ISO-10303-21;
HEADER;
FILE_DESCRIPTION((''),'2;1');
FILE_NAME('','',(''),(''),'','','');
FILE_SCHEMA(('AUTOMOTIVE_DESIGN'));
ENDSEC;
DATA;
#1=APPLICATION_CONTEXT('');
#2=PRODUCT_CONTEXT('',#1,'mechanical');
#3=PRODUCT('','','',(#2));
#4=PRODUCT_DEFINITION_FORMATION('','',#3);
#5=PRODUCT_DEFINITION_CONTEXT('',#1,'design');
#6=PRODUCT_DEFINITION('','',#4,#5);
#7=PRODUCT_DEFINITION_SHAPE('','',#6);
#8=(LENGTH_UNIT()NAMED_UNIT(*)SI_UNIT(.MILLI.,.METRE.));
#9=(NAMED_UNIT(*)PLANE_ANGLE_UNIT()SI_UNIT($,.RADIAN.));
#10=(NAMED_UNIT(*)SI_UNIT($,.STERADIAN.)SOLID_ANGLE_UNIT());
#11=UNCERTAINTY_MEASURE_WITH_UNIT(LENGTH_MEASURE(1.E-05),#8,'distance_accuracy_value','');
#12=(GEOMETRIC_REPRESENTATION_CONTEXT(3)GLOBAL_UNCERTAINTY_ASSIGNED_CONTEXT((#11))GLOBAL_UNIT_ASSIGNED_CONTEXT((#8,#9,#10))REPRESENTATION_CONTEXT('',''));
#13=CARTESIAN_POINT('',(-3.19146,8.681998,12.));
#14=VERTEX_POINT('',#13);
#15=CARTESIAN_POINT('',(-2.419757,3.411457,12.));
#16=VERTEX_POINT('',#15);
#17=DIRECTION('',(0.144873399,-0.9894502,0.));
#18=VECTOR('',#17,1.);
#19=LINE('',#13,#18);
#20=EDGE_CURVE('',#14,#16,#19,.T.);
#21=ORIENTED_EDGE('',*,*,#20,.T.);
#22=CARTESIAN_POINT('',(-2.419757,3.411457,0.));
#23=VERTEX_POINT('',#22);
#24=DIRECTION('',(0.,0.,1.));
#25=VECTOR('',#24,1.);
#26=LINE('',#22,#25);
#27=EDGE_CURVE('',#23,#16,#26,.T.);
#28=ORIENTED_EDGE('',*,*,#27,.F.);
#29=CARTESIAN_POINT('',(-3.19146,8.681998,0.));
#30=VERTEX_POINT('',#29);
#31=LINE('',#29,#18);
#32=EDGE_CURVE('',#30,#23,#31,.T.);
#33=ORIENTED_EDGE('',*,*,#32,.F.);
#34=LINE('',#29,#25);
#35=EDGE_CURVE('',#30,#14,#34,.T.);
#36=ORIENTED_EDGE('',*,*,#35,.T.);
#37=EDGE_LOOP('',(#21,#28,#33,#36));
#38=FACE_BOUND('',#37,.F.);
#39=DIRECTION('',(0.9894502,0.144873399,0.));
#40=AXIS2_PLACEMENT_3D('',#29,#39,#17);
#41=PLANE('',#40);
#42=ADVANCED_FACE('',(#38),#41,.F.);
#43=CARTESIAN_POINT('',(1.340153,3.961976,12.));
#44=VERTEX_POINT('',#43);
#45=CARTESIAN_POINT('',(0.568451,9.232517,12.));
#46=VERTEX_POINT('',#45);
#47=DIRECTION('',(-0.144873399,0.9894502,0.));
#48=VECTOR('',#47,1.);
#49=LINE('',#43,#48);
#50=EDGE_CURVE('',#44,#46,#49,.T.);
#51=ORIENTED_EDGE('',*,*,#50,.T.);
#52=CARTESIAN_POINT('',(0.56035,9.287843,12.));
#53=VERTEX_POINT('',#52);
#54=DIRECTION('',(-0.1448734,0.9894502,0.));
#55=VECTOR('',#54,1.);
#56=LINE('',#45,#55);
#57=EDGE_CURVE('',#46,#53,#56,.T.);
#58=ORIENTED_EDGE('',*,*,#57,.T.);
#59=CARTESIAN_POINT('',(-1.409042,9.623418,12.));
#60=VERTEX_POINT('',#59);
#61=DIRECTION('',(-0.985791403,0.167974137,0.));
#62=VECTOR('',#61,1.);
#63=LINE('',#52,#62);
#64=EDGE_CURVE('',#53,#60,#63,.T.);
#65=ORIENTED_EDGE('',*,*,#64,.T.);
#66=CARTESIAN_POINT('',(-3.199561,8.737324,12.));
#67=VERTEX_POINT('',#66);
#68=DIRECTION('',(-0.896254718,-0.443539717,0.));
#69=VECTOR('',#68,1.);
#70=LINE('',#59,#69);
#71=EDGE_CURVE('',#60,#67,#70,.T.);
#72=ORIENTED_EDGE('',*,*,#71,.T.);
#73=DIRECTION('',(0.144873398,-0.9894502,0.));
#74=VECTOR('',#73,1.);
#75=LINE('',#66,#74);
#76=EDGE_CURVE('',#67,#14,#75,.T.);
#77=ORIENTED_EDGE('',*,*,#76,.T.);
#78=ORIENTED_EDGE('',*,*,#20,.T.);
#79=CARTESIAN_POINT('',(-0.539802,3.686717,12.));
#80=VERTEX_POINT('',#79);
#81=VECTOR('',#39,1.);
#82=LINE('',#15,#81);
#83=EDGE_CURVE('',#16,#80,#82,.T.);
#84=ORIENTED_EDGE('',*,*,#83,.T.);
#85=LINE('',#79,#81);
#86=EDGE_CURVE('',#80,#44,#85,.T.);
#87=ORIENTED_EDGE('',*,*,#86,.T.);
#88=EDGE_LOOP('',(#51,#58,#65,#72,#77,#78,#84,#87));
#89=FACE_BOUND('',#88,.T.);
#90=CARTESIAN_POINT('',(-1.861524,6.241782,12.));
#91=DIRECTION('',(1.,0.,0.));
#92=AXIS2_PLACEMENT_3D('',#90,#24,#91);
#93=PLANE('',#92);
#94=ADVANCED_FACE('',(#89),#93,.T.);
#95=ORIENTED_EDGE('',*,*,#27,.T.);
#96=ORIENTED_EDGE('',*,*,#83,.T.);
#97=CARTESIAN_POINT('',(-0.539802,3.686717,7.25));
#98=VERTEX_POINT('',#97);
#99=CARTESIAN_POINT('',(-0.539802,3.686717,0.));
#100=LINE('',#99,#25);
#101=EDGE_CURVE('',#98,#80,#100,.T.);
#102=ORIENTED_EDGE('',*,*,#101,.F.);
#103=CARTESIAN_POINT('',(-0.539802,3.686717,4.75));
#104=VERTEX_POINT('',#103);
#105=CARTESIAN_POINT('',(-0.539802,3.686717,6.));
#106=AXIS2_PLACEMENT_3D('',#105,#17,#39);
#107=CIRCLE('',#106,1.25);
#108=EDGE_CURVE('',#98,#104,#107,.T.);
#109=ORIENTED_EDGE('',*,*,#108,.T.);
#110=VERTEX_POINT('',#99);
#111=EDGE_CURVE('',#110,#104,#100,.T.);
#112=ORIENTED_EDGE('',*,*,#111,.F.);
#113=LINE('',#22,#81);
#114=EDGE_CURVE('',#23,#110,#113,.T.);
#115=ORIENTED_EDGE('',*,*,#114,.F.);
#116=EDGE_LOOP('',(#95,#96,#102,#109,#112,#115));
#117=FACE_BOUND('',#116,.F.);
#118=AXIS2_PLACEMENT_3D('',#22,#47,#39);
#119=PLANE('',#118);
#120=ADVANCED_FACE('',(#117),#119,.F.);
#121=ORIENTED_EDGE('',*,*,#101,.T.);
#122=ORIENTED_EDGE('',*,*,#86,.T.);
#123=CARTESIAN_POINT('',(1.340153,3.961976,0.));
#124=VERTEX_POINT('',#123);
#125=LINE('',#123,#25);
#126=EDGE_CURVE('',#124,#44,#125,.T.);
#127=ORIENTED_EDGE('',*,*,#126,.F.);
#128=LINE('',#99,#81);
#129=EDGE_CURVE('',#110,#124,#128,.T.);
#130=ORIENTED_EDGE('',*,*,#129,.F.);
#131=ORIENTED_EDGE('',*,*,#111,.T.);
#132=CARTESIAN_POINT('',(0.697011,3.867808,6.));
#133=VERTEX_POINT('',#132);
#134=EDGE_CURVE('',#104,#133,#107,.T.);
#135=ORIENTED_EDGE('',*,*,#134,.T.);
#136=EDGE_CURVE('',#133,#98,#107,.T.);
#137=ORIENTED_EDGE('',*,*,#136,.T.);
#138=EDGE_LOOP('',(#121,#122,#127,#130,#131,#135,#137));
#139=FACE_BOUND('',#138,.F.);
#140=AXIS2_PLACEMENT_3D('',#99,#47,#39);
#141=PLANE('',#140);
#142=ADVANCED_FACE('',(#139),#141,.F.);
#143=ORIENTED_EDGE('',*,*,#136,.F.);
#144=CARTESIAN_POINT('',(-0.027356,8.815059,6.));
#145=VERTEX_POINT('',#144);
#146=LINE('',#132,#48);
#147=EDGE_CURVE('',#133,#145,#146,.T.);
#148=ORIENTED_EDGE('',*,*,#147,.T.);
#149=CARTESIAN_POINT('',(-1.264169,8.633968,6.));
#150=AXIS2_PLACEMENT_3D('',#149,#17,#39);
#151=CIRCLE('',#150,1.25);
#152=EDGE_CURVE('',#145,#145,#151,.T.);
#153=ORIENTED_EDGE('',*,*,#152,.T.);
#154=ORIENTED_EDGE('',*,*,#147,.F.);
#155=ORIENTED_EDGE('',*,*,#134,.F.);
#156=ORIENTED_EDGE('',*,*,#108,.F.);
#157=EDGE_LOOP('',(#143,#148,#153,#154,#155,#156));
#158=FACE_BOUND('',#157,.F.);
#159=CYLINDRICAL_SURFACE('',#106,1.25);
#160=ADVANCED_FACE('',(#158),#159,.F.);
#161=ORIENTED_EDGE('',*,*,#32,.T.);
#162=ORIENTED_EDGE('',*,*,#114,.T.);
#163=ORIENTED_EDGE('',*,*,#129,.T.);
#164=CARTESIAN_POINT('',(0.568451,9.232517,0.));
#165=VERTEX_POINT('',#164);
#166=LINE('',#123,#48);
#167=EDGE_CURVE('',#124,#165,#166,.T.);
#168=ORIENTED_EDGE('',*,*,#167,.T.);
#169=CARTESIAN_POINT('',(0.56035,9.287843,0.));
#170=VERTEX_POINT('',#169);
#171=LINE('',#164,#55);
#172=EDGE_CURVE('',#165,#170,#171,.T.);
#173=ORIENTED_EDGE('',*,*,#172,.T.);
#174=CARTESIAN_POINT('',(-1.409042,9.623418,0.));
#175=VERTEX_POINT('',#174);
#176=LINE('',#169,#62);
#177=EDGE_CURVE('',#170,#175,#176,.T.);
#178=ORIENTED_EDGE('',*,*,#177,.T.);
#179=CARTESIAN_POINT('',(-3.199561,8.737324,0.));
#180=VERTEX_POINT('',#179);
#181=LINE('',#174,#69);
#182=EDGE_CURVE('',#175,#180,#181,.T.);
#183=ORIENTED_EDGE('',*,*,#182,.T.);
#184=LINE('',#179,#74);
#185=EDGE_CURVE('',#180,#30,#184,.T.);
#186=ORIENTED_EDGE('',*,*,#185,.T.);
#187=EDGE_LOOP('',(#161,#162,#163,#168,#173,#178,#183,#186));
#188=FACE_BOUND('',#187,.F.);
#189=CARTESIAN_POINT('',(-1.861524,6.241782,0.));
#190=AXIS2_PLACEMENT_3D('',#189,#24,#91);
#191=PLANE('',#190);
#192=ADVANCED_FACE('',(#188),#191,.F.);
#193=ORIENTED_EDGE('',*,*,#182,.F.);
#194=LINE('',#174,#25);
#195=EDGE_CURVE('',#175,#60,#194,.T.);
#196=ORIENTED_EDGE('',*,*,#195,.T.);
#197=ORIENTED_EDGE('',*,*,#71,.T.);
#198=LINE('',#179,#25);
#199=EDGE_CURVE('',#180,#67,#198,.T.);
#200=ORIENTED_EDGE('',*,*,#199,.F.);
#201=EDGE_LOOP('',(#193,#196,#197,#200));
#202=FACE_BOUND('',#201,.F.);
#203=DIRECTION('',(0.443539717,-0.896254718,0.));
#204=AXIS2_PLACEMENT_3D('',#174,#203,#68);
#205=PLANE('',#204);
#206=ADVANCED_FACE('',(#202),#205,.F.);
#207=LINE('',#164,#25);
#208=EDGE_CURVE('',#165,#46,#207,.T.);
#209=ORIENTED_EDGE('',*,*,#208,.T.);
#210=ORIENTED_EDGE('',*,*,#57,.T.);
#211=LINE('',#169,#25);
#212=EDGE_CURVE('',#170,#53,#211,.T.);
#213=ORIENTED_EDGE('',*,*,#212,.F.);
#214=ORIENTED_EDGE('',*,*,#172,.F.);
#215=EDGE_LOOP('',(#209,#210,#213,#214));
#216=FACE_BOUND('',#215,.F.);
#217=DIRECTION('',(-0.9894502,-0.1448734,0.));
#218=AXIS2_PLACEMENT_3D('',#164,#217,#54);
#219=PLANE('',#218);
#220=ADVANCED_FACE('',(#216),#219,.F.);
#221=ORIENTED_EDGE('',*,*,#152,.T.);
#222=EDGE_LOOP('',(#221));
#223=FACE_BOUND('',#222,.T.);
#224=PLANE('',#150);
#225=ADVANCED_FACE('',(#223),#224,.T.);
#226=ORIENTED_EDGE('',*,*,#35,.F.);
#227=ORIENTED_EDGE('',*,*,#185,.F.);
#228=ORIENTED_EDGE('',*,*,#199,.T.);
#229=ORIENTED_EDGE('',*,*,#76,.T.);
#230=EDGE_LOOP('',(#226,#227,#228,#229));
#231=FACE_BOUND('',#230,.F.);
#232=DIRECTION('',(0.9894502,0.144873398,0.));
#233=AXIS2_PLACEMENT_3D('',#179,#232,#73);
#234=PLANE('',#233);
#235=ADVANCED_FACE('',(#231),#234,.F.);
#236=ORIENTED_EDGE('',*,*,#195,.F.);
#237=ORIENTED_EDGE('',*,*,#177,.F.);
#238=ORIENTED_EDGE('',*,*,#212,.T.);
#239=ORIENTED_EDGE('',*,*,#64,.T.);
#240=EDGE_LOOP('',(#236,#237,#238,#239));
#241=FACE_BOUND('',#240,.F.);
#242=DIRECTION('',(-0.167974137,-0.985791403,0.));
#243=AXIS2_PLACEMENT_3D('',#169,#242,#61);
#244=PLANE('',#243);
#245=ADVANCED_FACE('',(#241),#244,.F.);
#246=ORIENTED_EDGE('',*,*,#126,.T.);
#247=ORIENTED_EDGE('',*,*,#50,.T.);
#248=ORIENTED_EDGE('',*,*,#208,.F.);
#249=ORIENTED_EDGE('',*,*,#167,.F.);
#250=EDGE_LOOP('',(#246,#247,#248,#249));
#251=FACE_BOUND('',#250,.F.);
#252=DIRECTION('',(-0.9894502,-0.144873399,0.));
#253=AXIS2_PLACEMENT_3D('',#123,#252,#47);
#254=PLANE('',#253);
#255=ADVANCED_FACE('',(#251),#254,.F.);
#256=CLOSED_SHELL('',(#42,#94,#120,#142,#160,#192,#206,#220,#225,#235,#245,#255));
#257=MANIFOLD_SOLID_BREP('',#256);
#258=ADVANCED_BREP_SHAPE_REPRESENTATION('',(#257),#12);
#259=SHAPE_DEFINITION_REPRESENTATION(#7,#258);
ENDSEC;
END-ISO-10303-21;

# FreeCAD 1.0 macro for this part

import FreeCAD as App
import Part
import Sketcher

V = App.Vector
Q = App.Units.Quantity


def add_polygon(sketch, points):
    """Adds a closed chain of lines whose ends are joined by coincident constraints."""
    first, n = sketch.GeometryCount, len(points)
    for a, b in zip(points, points[1:] + points[:1]):
        sketch.addGeometry(Part.LineSegment(App.Vector(*a, 0), App.Vector(*b, 0)), False)
    for i in range(n):
        sketch.addConstraint(Sketcher.Constraint("Coincident", first + i, 2, first + (i + 1) % n, 1))

doc = App.newDocument("Part")
body = doc.addObject("PartDesign::Body", "Body")

# Sketch on XY plane
sketch1 = body.newObject("Sketcher::SketchObject", "Sketch")
sketch1.AttachmentSupport = (doc.getObject("XY_Plane"), [""])
sketch1.MapMode = "FlatFace"
add_polygon(sketch1, [(-3.19, 8.68), (-2.42, 3.41), (-0.54, 3.69), (1.34, 3.96), (0.57, 9.23), (0.56, 9.29), (-1.41, 9.62), (-3.2, 8.74)])  # lines 0-7
sketch1.addConstraint(Sketcher.Constraint("Perpendicular", 0, 1))
sketch1.addConstraint(Sketcher.Constraint("Parallel", 1, 2))
sketch1.addConstraint(Sketcher.Constraint("Perpendicular", 2, 3))
sketch1.addConstraint(Sketcher.Constraint("Parallel", 3, 4))
sketch1.addConstraint(Sketcher.Constraint("Parallel", 4, 7))
sketch1.addConstraint(Sketcher.Constraint("Equal", 1, 2))
sketch1.addConstraint(Sketcher.Constraint("Equal", 0, 3))
sketch1.addConstraint(Sketcher.Constraint("Equal", 5, 6))
sketch1.addConstraint(Sketcher.Constraint("Equal", 4, 7))
sketch1.addConstraint(Sketcher.Constraint("Distance", 1, Q("1.9 mm")))
sketch1.addConstraint(Sketcher.Constraint("DistanceX", 1, 2, -1, 1, Q("0.539802 mm")))
sketch1.addConstraint(Sketcher.Constraint("DistanceY", 1, 2, 3, 2, Q("5.5458 mm")))
sketch1.addConstraint(Sketcher.Constraint("DistanceX", 4, 2, 3, 2, Q("0.008101 mm")))
sketch1.addConstraint(Sketcher.Constraint("DistanceY", 3, 2, 5, 2, Q("0.390901 mm")))
sketch1.addConstraint(Sketcher.Constraint("Distance", 5, Q("1.997778 mm")))
sketch1.addConstraint(Sketcher.Constraint("DistanceY", -1, 1, 0, 2, Q("3.411457 mm")))
pad1 = body.newObject("PartDesign::Pad", "Pad")
pad1.Profile = sketch1
pad1.Length = 12

# Sketch on an angled plane
sketch2 = body.newObject("Sketcher::SketchObject", "Sketch001")
sketch2.Placement = App.Placement(V(-0.539802, 3.686717, 0), App.Rotation(V(0.9894502, 0.144873399, 0), V(0, 0, 1), V(0.144873399, -0.9894502, 0), "ZXY"))
sketch2.addGeometry(Part.Circle(V(0, 6, 0), V(0, 0, 1), 1.2), False)
sketch2.addConstraint(Sketcher.Constraint("PointOnObject", 0, 3, -2))
sketch2.addConstraint(Sketcher.Constraint("Diameter", 0, Q("2.5 mm")))
sketch2.addConstraint(Sketcher.Constraint("DistanceY", -1, 1, 0, 3, Q("6 mm")))
pocket1 = body.newObject("PartDesign::Pocket", "Pocket")
pocket1.Profile = sketch2
pocket1.Length = 5

doc.recompute()
